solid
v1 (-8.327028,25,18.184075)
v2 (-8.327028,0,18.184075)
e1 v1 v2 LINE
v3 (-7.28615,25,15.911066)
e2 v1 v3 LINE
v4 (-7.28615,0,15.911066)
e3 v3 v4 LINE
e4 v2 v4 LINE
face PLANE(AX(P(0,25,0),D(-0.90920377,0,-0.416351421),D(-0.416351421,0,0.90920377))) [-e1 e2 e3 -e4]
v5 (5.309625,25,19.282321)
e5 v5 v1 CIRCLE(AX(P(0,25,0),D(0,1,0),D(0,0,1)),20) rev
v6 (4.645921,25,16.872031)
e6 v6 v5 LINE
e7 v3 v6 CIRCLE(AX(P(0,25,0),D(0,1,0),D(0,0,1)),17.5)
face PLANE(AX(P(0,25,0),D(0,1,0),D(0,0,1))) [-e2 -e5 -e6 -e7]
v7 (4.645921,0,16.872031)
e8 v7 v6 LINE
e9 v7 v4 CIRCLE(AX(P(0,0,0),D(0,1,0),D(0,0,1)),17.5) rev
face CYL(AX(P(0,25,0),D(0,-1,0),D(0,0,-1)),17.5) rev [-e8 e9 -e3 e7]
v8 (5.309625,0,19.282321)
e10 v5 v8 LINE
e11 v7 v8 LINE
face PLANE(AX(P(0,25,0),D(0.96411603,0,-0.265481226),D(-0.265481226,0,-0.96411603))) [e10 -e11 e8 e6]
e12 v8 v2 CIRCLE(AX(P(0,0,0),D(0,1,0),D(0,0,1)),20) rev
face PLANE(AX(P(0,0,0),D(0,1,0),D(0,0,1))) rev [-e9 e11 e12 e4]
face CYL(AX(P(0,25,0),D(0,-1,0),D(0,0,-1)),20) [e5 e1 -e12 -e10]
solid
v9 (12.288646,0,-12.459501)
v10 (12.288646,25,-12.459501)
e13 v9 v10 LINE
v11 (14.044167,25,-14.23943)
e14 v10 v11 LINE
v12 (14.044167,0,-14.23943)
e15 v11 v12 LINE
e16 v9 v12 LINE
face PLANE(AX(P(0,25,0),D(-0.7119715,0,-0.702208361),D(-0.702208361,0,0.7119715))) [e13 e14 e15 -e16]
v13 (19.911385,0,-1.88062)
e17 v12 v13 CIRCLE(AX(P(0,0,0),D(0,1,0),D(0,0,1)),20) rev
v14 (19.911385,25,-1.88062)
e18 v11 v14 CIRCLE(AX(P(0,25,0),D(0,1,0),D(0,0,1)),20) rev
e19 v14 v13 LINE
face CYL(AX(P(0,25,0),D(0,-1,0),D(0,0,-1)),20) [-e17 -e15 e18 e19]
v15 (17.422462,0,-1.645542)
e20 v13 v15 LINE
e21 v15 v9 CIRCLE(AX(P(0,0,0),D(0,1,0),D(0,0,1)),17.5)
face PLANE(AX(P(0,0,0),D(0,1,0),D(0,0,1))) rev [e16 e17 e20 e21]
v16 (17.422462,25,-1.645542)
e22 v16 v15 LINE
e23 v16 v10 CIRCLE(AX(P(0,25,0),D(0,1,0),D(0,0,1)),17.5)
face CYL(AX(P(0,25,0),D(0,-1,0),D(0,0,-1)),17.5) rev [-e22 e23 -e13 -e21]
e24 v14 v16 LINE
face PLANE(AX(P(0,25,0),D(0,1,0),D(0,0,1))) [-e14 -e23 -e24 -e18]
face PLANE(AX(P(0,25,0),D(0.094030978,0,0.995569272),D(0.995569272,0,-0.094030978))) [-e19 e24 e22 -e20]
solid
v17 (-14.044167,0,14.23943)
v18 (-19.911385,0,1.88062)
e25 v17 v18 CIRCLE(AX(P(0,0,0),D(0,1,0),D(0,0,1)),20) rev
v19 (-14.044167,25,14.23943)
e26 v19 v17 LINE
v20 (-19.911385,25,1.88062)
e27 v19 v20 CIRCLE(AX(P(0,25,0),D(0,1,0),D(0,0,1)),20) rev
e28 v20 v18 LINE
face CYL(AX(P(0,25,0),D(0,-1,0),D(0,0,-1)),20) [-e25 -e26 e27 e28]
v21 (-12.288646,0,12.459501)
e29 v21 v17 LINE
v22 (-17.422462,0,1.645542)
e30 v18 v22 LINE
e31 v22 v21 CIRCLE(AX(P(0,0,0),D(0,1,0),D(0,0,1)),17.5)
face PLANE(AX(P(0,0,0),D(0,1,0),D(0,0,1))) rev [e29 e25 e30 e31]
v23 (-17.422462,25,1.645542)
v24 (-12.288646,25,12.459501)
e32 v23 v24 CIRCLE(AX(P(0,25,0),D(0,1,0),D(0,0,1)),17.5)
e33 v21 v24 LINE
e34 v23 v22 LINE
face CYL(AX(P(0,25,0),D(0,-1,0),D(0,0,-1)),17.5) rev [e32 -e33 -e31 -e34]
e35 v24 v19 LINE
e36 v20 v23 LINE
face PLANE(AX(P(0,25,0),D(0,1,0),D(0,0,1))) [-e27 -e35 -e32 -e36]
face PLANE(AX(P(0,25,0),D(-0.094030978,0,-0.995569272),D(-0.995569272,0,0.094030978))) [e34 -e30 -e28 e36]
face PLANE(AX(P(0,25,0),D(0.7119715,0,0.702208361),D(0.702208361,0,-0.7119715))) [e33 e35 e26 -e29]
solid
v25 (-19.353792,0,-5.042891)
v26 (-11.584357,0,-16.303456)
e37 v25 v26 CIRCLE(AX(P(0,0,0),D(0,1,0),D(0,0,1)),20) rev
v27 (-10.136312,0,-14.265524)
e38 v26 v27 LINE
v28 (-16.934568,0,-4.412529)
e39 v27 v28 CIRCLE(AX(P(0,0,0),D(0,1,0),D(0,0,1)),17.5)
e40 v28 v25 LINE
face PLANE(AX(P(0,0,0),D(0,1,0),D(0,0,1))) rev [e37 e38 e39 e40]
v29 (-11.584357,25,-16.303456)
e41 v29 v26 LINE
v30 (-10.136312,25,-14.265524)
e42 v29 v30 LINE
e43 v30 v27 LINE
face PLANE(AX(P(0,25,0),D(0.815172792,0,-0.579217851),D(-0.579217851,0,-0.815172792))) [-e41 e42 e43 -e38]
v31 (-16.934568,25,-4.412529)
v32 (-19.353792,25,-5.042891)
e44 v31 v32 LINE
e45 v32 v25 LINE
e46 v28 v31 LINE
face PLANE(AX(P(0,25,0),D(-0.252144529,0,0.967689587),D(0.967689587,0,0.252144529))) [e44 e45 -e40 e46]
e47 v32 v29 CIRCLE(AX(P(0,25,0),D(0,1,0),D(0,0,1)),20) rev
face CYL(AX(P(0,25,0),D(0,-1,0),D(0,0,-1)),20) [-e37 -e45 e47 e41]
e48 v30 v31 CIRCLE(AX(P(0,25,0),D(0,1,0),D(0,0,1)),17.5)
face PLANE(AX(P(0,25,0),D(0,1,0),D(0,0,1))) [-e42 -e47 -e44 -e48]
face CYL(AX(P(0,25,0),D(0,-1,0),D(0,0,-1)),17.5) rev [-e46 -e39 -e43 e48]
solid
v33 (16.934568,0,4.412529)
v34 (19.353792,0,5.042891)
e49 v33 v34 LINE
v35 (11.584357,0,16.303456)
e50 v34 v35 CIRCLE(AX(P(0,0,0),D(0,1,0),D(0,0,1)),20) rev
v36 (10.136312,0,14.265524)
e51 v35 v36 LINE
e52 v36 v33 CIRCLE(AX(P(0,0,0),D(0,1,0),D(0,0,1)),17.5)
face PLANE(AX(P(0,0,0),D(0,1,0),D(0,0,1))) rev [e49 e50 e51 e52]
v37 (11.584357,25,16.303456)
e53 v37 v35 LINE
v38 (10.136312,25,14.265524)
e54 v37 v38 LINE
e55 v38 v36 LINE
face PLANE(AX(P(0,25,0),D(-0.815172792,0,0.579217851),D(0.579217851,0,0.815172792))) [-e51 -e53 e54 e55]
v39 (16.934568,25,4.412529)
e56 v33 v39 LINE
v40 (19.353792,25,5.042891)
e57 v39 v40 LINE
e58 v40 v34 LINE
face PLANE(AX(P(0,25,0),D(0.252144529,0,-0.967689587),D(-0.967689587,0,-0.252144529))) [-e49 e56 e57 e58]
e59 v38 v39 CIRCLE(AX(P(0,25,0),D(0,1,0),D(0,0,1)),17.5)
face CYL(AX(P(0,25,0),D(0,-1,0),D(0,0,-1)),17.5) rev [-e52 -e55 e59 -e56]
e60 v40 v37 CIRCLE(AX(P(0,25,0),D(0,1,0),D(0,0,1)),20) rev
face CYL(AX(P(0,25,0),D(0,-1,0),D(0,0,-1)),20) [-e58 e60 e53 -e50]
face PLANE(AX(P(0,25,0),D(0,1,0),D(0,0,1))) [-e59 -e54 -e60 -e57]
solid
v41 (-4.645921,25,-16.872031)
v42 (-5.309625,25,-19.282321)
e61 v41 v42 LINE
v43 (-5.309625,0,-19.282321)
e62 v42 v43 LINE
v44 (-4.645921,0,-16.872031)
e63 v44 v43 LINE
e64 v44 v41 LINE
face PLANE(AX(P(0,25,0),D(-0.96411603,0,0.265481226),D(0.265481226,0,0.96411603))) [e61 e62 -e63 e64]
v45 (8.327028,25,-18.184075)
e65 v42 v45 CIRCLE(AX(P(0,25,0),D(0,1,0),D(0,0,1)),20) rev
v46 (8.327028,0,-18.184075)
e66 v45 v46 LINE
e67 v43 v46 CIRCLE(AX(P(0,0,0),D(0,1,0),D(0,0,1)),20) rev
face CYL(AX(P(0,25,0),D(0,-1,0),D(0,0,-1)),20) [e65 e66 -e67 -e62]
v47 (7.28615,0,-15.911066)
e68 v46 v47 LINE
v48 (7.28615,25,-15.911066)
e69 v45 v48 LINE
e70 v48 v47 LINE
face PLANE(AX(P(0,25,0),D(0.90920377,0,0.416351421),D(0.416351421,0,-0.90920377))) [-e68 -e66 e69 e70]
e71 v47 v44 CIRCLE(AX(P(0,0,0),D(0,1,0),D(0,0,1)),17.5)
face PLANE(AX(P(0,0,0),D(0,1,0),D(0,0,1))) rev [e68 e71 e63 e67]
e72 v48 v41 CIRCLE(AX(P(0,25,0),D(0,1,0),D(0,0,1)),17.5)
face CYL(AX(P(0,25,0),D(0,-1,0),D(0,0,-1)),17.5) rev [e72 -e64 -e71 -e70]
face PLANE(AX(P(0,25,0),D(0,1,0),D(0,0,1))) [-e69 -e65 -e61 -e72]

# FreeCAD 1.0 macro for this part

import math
import FreeCAD as App
import Part
import Sketcher

doc = App.newDocument("Part")
body = doc.addObject("PartDesign::Body", "Body")

# Sketch on XZ plane
sketch1 = body.newObject("Sketcher::SketchObject", "Sketch")
sketch1.AttachmentSupport = (doc.getObject("XZ_Plane"), [""])
sketch1.MapMode = "FlatFace"
sketch1.addGeometry([
    Part.ArcOfCircle(Part.Circle(App.Vector(0, 0, 0), App.Vector(0, 0, 1), 20), math.radians(-165.395549), math.radians(-125.395549)),
    Part.LineSegment(App.Vector(-19.353792, -5.042891, 0), App.Vector(0, 0, 0)),
    Part.LineSegment(App.Vector(0, 0, 0), App.Vector(-11.584357, -16.303456, 0)),
], False)
sketch1.addConstraint([
    Sketcher.Constraint("Coincident", 0, 1, 1, 1),
    Sketcher.Constraint("Coincident", 1, 2, 2, 1),
    Sketcher.Constraint("Coincident", 2, 2, 0, 2),
    Sketcher.Constraint("Coincident", 0, 3, -1, 1),
    Sketcher.Constraint("Coincident", 1, 2, -1, 1),
    Sketcher.Constraint("Radius", 0, 20.0),
    Sketcher.Constraint("DistanceX", 0, 1, -1, 1, 19.353792),
    Sketcher.Constraint("DistanceX", 2, 2, -1, 1, 11.584357),
])
pad1 = body.newObject("PartDesign::Pad", "Pad")
pad1.Profile = sketch1
pad1.Length = 25
pad1.Reversed = True
body2 = doc.addObject("PartDesign::Body", "Body001")

# Sketch on XZ plane
sketch2 = body2.newObject("Sketcher::SketchObject", "Sketch001")
sketch2.AttachmentSupport = (doc.getObject("XZ_Plane001"), [""])
sketch2.MapMode = "FlatFace"
sketch2.addGeometry([
    Part.ArcOfCircle(Part.Circle(App.Vector(0, 0, 0), App.Vector(0, 0, 1), 20), math.radians(134.604451), math.radians(174.604451)),
    Part.LineSegment(App.Vector(-14.044167, 14.23943, 0), App.Vector(0, 0, 0)),
    Part.LineSegment(App.Vector(0, 0, 0), App.Vector(-19.911385, 1.88062, 0)),
], False)
sketch2.addConstraint([
    Sketcher.Constraint("Coincident", 0, 1, 1, 1),
    Sketcher.Constraint("Coincident", 1, 2, 2, 1),
    Sketcher.Constraint("Coincident", 2, 2, 0, 2),
    Sketcher.Constraint("Coincident", 0, 3, -1, 1),
    Sketcher.Constraint("Coincident", 1, 2, -1, 1),
    Sketcher.Constraint("Radius", 0, 20.0),
    Sketcher.Constraint("DistanceY", -1, 1, 0, 1, 14.23943),
    Sketcher.Constraint("DistanceY", -1, 1, 2, 2, 1.88062),
])
pad2 = body2.newObject("PartDesign::Pad", "Pad001")
pad2.Profile = sketch2
pad2.Length = 25
pad2.Reversed = True
body3 = doc.addObject("PartDesign::Body", "Body002")

# Sketch on XZ plane
sketch3 = body3.newObject("Sketcher::SketchObject", "Sketch002")
sketch3.AttachmentSupport = (doc.getObject("XZ_Plane002"), [""])
sketch3.MapMode = "FlatFace"
sketch3.addGeometry([
    Part.ArcOfCircle(Part.Circle(App.Vector(0, 0, 0), App.Vector(0, 0, 1), 20), math.radians(74.604451), math.radians(114.604451)),
    Part.LineSegment(App.Vector(5.309625, 19.282321, 0), App.Vector(0, 0, 0)),
    Part.LineSegment(App.Vector(0, 0, 0), App.Vector(-8.327028, 18.184075, 0)),
], False)
sketch3.addConstraint([
    Sketcher.Constraint("Coincident", 0, 1, 1, 1),
    Sketcher.Constraint("Coincident", 1, 2, 2, 1),
    Sketcher.Constraint("Coincident", 2, 2, 0, 2),
    Sketcher.Constraint("Coincident", 0, 3, -1, 1),
    Sketcher.Constraint("Coincident", 1, 2, -1, 1),
    Sketcher.Constraint("Radius", 0, 20.0),
    Sketcher.Constraint("DistanceY", -1, 1, 0, 1, 19.282321),
    Sketcher.Constraint("DistanceX", 2, 2, -1, 1, 8.327028),
])
pad3 = body3.newObject("PartDesign::Pad", "Pad002")
pad3.Profile = sketch3
pad3.Length = 25
pad3.Reversed = True
body4 = doc.addObject("PartDesign::Body", "Body003")

# Sketch on XZ plane
sketch4 = body4.newObject("Sketcher::SketchObject", "Sketch003")
sketch4.AttachmentSupport = (doc.getObject("XZ_Plane003"), [""])
sketch4.MapMode = "FlatFace"
sketch4.addGeometry([
    Part.ArcOfCircle(Part.Circle(App.Vector(0, 0, 0), App.Vector(0, 0, 1), 20), math.radians(14.604451), math.radians(54.604451)),
    Part.LineSegment(App.Vector(19.353792, 5.042891, 0), App.Vector(0, 0, 0)),
    Part.LineSegment(App.Vector(0, 0, 0), App.Vector(11.584357, 16.303456, 0)),
], False)
sketch4.addConstraint([
    Sketcher.Constraint("Coincident", 0, 1, 1, 1),
    Sketcher.Constraint("Coincident", 1, 2, 2, 1),
    Sketcher.Constraint("Coincident", 2, 2, 0, 2),
    Sketcher.Constraint("Coincident", 0, 3, -1, 1),
    Sketcher.Constraint("Coincident", 1, 2, -1, 1),
    Sketcher.Constraint("Radius", 0, 20.0),
    Sketcher.Constraint("DistanceX", -1, 1, 0, 1, 19.353792),
    Sketcher.Constraint("DistanceX", -1, 1, 2, 2, 11.584357),
])
pad4 = body4.newObject("PartDesign::Pad", "Pad003")
pad4.Profile = sketch4
pad4.Length = 25
pad4.Reversed = True
body5 = doc.addObject("PartDesign::Body", "Body004")

# Sketch on XZ plane
sketch5 = body5.newObject("Sketcher::SketchObject", "Sketch004")
sketch5.AttachmentSupport = (doc.getObject("XZ_Plane004"), [""])
sketch5.MapMode = "FlatFace"
sketch5.addGeometry([
    Part.ArcOfCircle(Part.Circle(App.Vector(0, 0, 0), App.Vector(0, 0, 1), 20), math.radians(-45.395549), math.radians(-5.395549)),
    Part.LineSegment(App.Vector(14.044167, -14.23943, 0), App.Vector(0, 0, 0)),
    Part.LineSegment(App.Vector(0, 0, 0), App.Vector(19.911385, -1.88062, 0)),
], False)
sketch5.addConstraint([
    Sketcher.Constraint("Coincident", 0, 1, 1, 1),
    Sketcher.Constraint("Coincident", 1, 2, 2, 1),
    Sketcher.Constraint("Coincident", 2, 2, 0, 2),
    Sketcher.Constraint("Coincident", 0, 3, -1, 1),
    Sketcher.Constraint("Coincident", 1, 2, -1, 1),
    Sketcher.Constraint("Radius", 0, 20.0),
    Sketcher.Constraint("DistanceY", 0, 1, -1, 1, 14.23943),
    Sketcher.Constraint("DistanceY", 2, 2, -1, 1, 1.88062),
])
pad5 = body5.newObject("PartDesign::Pad", "Pad004")
pad5.Profile = sketch5
pad5.Length = 25
pad5.Reversed = True
body6 = doc.addObject("PartDesign::Body", "Body005")

# Sketch on XZ plane
sketch6 = body6.newObject("Sketcher::SketchObject", "Sketch005")
sketch6.AttachmentSupport = (doc.getObject("XZ_Plane005"), [""])
sketch6.MapMode = "FlatFace"
sketch6.addGeometry([
    Part.ArcOfCircle(Part.Circle(App.Vector(0, 0, 0), App.Vector(0, 0, 1), 20), math.radians(-105.395549), math.radians(-65.395549)),
    Part.LineSegment(App.Vector(-5.309625, -19.282321, 0), App.Vector(0, 0, 0)),
    Part.LineSegment(App.Vector(0, 0, 0), App.Vector(8.327028, -18.184075, 0)),
], False)
sketch6.addConstraint([
    Sketcher.Constraint("Coincident", 0, 1, 1, 1),
    Sketcher.Constraint("Coincident", 1, 2, 2, 1),
    Sketcher.Constraint("Coincident", 2, 2, 0, 2),
    Sketcher.Constraint("Coincident", 0, 3, -1, 1),
    Sketcher.Constraint("Coincident", 1, 2, -1, 1),
    Sketcher.Constraint("Radius", 0, 20.0),
    Sketcher.Constraint("DistanceY", 0, 1, -1, 1, 19.282321),
    Sketcher.Constraint("DistanceX", -1, 1, 2, 2, 8.327028),
])
pad6 = body6.newObject("PartDesign::Pad", "Pad005")
pad6.Profile = sketch6
pad6.Length = 25
pad6.Reversed = True
body7 = doc.addObject("PartDesign::Body", "Body006")

# Sketch on XZ plane
sketch7 = body7.newObject("Sketcher::SketchObject", "Sketch006")
sketch7.AttachmentSupport = (doc.getObject("XZ_Plane006"), [""])
sketch7.MapMode = "FlatFace"
sketch7.addGeometry(Part.Circle(App.Vector(0, 0, 0), App.Vector(0, 0, 1), 17.5), False)
sketch7.addConstraint([
    Sketcher.Constraint("Coincident", 0, 3, -1, 1),
    Sketcher.Constraint("Diameter", 0, 35.0),
])
pad7 = body7.newObject("PartDesign::Pad", "Pad006")
pad7.Profile = sketch7
pad7.Length = 25
pad7.Reversed = True
doc.recompute()

body8 = doc.addObject("PartDesign::Body", "Body007")
body8.BaseFeature = body7
boolean = body.newObject("PartDesign::Boolean", "Boolean")
boolean.Type = "Cut"
boolean.addObjects([body8])
doc.recompute()

body9 = doc.addObject("PartDesign::Body", "Body008")
body9.BaseFeature = body7
boolean2 = body2.newObject("PartDesign::Boolean", "Boolean001")
boolean2.Type = "Cut"
boolean2.addObjects([body9])
doc.recompute()

body10 = doc.addObject("PartDesign::Body", "Body009")
body10.BaseFeature = body7
boolean3 = body3.newObject("PartDesign::Boolean", "Boolean002")
boolean3.Type = "Cut"
boolean3.addObjects([body10])
doc.recompute()

body11 = doc.addObject("PartDesign::Body", "Body010")
body11.BaseFeature = body7
boolean4 = body4.newObject("PartDesign::Boolean", "Boolean003")
boolean4.Type = "Cut"
boolean4.addObjects([body11])
doc.recompute()

body12 = doc.addObject("PartDesign::Body", "Body011")
body12.BaseFeature = body7
boolean5 = body5.newObject("PartDesign::Boolean", "Boolean004")
boolean5.Type = "Cut"
boolean5.addObjects([body12])
doc.recompute()

boolean6 = body6.newObject("PartDesign::Boolean", "Boolean005")
boolean6.Type = "Cut"
boolean6.addObjects([body7])

doc.recompute()
